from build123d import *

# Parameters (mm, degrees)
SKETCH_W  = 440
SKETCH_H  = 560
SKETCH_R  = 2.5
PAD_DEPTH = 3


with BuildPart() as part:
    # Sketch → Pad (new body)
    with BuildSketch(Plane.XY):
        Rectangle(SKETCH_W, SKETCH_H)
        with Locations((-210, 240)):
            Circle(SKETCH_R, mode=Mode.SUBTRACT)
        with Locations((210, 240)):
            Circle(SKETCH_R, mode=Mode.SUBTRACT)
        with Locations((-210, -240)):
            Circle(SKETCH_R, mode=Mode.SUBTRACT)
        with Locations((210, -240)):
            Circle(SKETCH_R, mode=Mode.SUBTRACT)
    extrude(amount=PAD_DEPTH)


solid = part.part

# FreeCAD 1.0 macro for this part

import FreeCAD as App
import Part
import Sketcher
Q = App.Units.Quantity

doc = App.newDocument("Part")
body = doc.addObject("PartDesign::Body", "Body")

# Sketch on XY plane
sketch1 = doc.addObject("Sketcher::SketchObject", "Sketch")
body.addObject(sketch1)
sketch1.AttachmentSupport = (doc.XY_Plane, [""])
sketch1.MapMode = "FlatFace"
sketch1.addGeometry(Part.LineSegment(App.Vector(-220, 280, 0), App.Vector(-220, -280, 0)), False)
sketch1.addGeometry(Part.LineSegment(App.Vector(-220, -280, 0), App.Vector(220, -280, 0)), False)
sketch1.addGeometry(Part.LineSegment(App.Vector(220, -280, 0), App.Vector(220, 280, 0)), False)
sketch1.addGeometry(Part.LineSegment(App.Vector(220, 280, 0), App.Vector(-220, 280, 0)), False)
sketch1.addGeometry(Part.Circle(App.Vector(-210, -240, 0), App.Vector(0, 0, 1), 2.5), False)
sketch1.addGeometry(Part.Circle(App.Vector(210, -240, 0), App.Vector(0, 0, 1), 2.5), False)
sketch1.addGeometry(Part.Circle(App.Vector(-210, 240, 0), App.Vector(0, 0, 1), 2.5), False)
sketch1.addGeometry(Part.Circle(App.Vector(210, 240, 0), App.Vector(0, 0, 1), 2.5), False)
sketch1.addConstraint(Sketcher.Constraint("Coincident", 0, 2, 1, 1))
sketch1.addConstraint(Sketcher.Constraint("Coincident", 1, 2, 2, 1))
sketch1.addConstraint(Sketcher.Constraint("Coincident", 2, 2, 3, 1))
sketch1.addConstraint(Sketcher.Constraint("Coincident", 3, 2, 0, 1))
sketch1.addConstraint(Sketcher.Constraint("Vertical", 0))
sketch1.addConstraint(Sketcher.Constraint("Horizontal", 1))
sketch1.addConstraint(Sketcher.Constraint("Vertical", 2))
sketch1.addConstraint(Sketcher.Constraint("Horizontal", 3))
sketch1.addConstraint(Sketcher.Constraint("Equal", 4, 5))
sketch1.addConstraint(Sketcher.Constraint("Equal", 5, 6))
sketch1.addConstraint(Sketcher.Constraint("Equal", 6, 7))
sketch1.addConstraint(Sketcher.Constraint("Symmetric", 5, 3, 6, 3, -1, 1))
sketch1.addConstraint(Sketcher.Constraint("Symmetric", 4, 3, 7, 3, -1, 1))
sketch1.addConstraint(Sketcher.Constraint("Symmetric", 0, 2, 2, 2, -1, 1))
sketch1.addConstraint(Sketcher.Constraint("Symmetric", 4, 3, 5, 3, -2))
sketch1.addConstraint(Sketcher.Constraint("Diameter", 4, Q("5 mm")))
sketch1.addConstraint(Sketcher.Constraint("DistanceX", 1, 1, 1, 2, Q("440 mm")))
sketch1.addConstraint(Sketcher.Constraint("DistanceY", 0, 2, 0, 1, Q("560 mm")))
sketch1.addConstraint(Sketcher.Constraint("DistanceX", 4, 3, -1, 1, Q("210 mm")))
sketch1.addConstraint(Sketcher.Constraint("DistanceY", 4, 3, -1, 1, Q("240 mm")))
pad1 = doc.addObject("PartDesign::Pad", "Pad")
body.addObject(pad1)
pad1.Profile = sketch1
pad1.Length = 3

doc.recompute()
